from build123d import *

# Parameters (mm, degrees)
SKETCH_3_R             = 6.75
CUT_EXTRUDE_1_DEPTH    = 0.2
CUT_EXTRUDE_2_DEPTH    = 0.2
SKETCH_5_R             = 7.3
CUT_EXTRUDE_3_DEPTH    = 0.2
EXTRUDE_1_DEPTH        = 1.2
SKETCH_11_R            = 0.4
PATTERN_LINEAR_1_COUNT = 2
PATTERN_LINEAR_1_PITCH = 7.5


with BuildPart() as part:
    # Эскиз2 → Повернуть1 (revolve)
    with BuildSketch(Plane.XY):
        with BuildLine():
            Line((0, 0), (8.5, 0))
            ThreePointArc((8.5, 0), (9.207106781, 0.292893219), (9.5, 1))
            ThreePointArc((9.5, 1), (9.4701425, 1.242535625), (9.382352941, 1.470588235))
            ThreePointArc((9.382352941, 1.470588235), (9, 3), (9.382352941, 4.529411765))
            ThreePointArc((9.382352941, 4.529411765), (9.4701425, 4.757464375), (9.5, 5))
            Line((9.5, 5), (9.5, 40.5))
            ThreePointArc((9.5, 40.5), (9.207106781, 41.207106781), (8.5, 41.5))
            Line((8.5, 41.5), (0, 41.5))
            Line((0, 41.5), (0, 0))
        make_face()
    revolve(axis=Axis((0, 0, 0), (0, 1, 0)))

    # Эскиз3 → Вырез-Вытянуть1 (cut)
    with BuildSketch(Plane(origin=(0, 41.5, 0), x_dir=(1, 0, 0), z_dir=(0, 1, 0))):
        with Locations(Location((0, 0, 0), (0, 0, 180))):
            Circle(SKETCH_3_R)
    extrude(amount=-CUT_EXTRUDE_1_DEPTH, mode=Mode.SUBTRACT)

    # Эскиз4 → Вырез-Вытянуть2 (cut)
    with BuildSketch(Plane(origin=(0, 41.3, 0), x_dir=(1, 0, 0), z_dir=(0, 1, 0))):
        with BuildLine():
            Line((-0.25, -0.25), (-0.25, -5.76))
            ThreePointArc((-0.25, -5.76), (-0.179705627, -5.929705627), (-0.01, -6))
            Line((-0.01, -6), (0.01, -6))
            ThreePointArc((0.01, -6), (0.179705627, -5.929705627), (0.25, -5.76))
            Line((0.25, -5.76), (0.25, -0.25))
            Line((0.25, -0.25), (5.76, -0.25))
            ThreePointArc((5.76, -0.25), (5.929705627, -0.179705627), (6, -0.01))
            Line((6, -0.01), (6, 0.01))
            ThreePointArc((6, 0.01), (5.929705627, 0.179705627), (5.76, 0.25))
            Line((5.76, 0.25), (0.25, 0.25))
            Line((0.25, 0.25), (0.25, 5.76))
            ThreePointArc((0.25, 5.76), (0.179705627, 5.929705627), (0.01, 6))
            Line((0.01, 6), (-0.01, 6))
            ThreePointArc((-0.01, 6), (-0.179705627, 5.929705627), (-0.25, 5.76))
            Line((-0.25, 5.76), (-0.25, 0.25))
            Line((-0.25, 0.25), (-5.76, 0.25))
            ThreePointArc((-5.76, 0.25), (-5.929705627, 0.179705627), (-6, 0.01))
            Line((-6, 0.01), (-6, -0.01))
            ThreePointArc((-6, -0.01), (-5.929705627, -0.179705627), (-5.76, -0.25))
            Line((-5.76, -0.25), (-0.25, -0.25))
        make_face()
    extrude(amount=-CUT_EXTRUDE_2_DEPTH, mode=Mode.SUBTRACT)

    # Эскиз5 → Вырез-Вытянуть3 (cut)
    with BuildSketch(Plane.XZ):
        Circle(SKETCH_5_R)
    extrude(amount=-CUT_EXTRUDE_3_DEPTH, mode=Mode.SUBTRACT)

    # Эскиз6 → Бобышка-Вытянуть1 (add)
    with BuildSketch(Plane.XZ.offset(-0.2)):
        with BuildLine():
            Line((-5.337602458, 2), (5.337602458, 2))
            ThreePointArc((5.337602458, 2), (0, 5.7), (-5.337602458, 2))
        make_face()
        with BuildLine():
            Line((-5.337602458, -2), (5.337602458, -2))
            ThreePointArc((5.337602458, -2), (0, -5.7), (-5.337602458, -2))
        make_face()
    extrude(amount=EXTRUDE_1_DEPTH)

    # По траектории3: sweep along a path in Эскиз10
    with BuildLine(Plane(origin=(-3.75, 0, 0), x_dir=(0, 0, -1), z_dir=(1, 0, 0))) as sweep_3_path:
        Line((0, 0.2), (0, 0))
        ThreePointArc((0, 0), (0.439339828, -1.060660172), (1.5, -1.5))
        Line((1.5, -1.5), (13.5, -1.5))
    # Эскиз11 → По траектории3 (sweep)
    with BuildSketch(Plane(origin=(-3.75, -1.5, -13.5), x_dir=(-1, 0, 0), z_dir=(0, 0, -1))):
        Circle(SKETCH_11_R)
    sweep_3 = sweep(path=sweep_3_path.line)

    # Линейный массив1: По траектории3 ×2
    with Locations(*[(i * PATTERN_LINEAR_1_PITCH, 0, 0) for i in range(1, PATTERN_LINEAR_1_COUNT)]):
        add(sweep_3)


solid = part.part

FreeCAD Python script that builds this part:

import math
import FreeCAD as App
import Part
import Sketcher
from FreeCAD import Vector
Q = App.Units.Quantity

doc = App.newDocument("Part")
body = doc.addObject("PartDesign::Body", "Body")

# Sketch on XY plane
sketch1 = doc.addObject("Sketcher::SketchObject", "Sketch")
body.addObject(sketch1)
sketch1.AttachmentSupport = (doc.XY_Plane, [""])
sketch1.MapMode = "FlatFace"
sketch1.addGeometry([
    Part.LineSegment(Vector(0, 0, 0), Vector(8.5, 0, 0)),  # 0
    Part.ArcOfCircle(Part.Circle(Vector(8.5, 1, 0), Vector(0, 0, 1), 1), math.radians(-90), math.radians(0)),  # 1
    Part.ArcOfCircle(Part.Circle(Vector(8.5, 1, 0), Vector(0, 0, 1), 1), math.radians(0), math.radians(28)),  # 2
    Part.ArcOfCircle(Part.Circle(Vector(12.25, 3, 0), Vector(0, 0, 1), 3.25), math.radians(152), math.radians(208)),  # 3
    Part.ArcOfCircle(Part.Circle(Vector(8.5, 5, 0), Vector(0, 0, 1), 1), math.radians(-28), math.radians(0)),  # 4
    Part.LineSegment(Vector(9.5, 5, 0), Vector(9.5, 40.5, 0)),  # 5
    Part.ArcOfCircle(Part.Circle(Vector(8.5, 40.5, 0), Vector(0, 0, 1), 1), math.radians(0), math.radians(90)),  # 6
    Part.LineSegment(Vector(8.5, 41.5, 0), Vector(0, 41.5, 0)),  # 7
    Part.LineSegment(Vector(0, 41.5, 0), Vector(0, 0, 0)),  # 8
], False)
sketch1.addConstraint([
    Sketcher.Constraint("Tangent", 0, 2, 1, 1),
    Sketcher.Constraint("Tangent", 1, 2, 2, 1),
    Sketcher.Constraint("Tangent", 2, 2, 3, 2),
    Sketcher.Constraint("Tangent", 3, 1, 4, 1),
    Sketcher.Constraint("Tangent", 4, 2, 5, 1),
    Sketcher.Constraint("Tangent", 5, 2, 6, 1),
    Sketcher.Constraint("Tangent", 6, 2, 7, 1),
    Sketcher.Constraint("Coincident", 7, 2, 8, 1),
    Sketcher.Constraint("Coincident", 8, 2, 0, 1),
    Sketcher.Constraint("Horizontal", 0),
    Sketcher.Constraint("Vertical", 5),
    Sketcher.Constraint("Horizontal", 7),
    Sketcher.Constraint("Vertical", 8),
    Sketcher.Constraint("Coincident", 8, 2, -1, 1),
    Sketcher.Constraint("Equal", 1, 2),
    Sketcher.Constraint("Equal", 2, 4),
    Sketcher.Constraint("Equal", 4, 6),
    Sketcher.Constraint("Horizontal", 2, 3, 1, 2),
    Sketcher.Constraint("Vertical", 2, 3, 4, 3),
    Sketcher.Constraint("Radius", 1, Q("1 mm")),
    Sketcher.Constraint("Radius", 3, Q("3.25 mm")),
    Sketcher.Constraint("DistanceX", 0, 1, 0, 2, Q("8.5 mm")),
    Sketcher.Constraint("DistanceY", 5, 1, 5, 2, Q("35.5 mm")),
    Sketcher.Constraint("DistanceY", 8, 2, 8, 1, Q("41.5 mm")),
])
revolution = doc.addObject("PartDesign::Revolution", "Revolution")
body.addObject(revolution)
revolution.Profile = sketch1
revolution.ReferenceAxis = (sketch1, ["V_Axis"])
revolution.Angle = 360

# Sketch on XZ plane
sketch2 = doc.addObject("Sketcher::SketchObject", "Sketch001")
body.addObject(sketch2)
sketch2.AttachmentSupport = (doc.XZ_Plane, [""])
sketch2.MapMode = "FlatFace"
sketch2.AttachmentOffset = App.Placement(Vector(0, 0, -41.5), App.Rotation())
sketch2.addGeometry(Part.Circle(Vector(0, 0, 0), Vector(0, 0, 1), 7), False)
sketch2.addConstraint([
    Sketcher.Constraint("Coincident", 0, 3, -1, 1),
    Sketcher.Constraint("Diameter", 0, Q("13.5 mm")),
])
pocket1 = doc.addObject("PartDesign::Pocket", "Pocket")
body.addObject(pocket1)
pocket1.Profile = sketch2
pocket1.Length = 0.2
pocket1.Reversed = True

# Sketch on XZ plane
sketch3 = doc.addObject("Sketcher::SketchObject", "Sketch002")
body.addObject(sketch3)
sketch3.AttachmentSupport = (doc.XZ_Plane, [""])
sketch3.MapMode = "FlatFace"
sketch3.AttachmentOffset = App.Placement(Vector(0, 0, -41.3), App.Rotation())
sketch3.addGeometry([
    Part.LineSegment(Vector(-0.25, 0.25, 0), Vector(-0.25, 5.76, 0)),  # 0
    Part.ArcOfCircle(Part.Circle(Vector(-0.01, 5.76, 0), Vector(0, 0, 1), 0.24), math.radians(90), math.radians(180)),  # 1
    Part.LineSegment(Vector(-0.01, 6, 0), Vector(0.01, 6, 0)),  # 2
    Part.ArcOfCircle(Part.Circle(Vector(0.01, 5.76, 0), Vector(0, 0, 1), 0.24), math.radians(0), math.radians(90)),  # 3
    Part.LineSegment(Vector(0.25, 5.76, 0), Vector(0.25, 0.25, 0)),  # 4
    Part.LineSegment(Vector(0.25, 0.25, 0), Vector(5.76, 0.25, 0)),  # 5
    Part.ArcOfCircle(Part.Circle(Vector(5.76, 0.01, 0), Vector(0, 0, 1), 0.24), math.radians(0), math.radians(90)),  # 6
    Part.LineSegment(Vector(6, 0.01, 0), Vector(6, -0.01, 0)),  # 7
    Part.ArcOfCircle(Part.Circle(Vector(5.76, -0.01, 0), Vector(0, 0, 1), 0.24), math.radians(-90), math.radians(0)),  # 8
    Part.LineSegment(Vector(5.76, -0.25, 0), Vector(0.25, -0.25, 0)),  # 9
    Part.LineSegment(Vector(0.25, -0.25, 0), Vector(0.25, -5.76, 0)),  # 10
    Part.ArcOfCircle(Part.Circle(Vector(0.01, -5.76, 0), Vector(0, 0, 1), 0.24), math.radians(-90), math.radians(0)),  # 11
    Part.LineSegment(Vector(0.01, -6, 0), Vector(-0.01, -6, 0)),  # 12
    Part.ArcOfCircle(Part.Circle(Vector(-0.01, -5.76, 0), Vector(0, 0, 1), 0.24), math.radians(-180), math.radians(-90)),  # 13
    Part.LineSegment(Vector(-0.25, -5.76, 0), Vector(-0.25, -0.25, 0)),  # 14
    Part.LineSegment(Vector(-0.25, -0.25, 0), Vector(-5.76, -0.25, 0)),  # 15
    Part.ArcOfCircle(Part.Circle(Vector(-5.76, -0.01, 0), Vector(0, 0, 1), 0.24), math.radians(-180), math.radians(-90)),  # 16
    Part.LineSegment(Vector(-6, -0.01, 0), Vector(-6, 0.01, 0)),  # 17
    Part.ArcOfCircle(Part.Circle(Vector(-5.76, 0.01, 0), Vector(0, 0, 1), 0.24), math.radians(90), math.radians(180)),  # 18
    Part.LineSegment(Vector(-5.76, 0.25, 0), Vector(-0.25, 0.25, 0)),  # 19
], False)
sketch3.addConstraint([
    Sketcher.Constraint("Tangent", 0, 2, 1, 2),
    Sketcher.Constraint("Tangent", 1, 1, 2, 1),
    Sketcher.Constraint("Tangent", 2, 2, 3, 2),
    Sketcher.Constraint("Tangent", 3, 1, 4, 1),
    Sketcher.Constraint("Coincident", 4, 2, 5, 1),
    Sketcher.Constraint("Tangent", 5, 2, 6, 2),
    Sketcher.Constraint("Tangent", 6, 1, 7, 1),
    Sketcher.Constraint("Tangent", 7, 2, 8, 2),
    Sketcher.Constraint("Tangent", 8, 1, 9, 1),
    Sketcher.Constraint("Coincident", 9, 2, 10, 1),
    Sketcher.Constraint("Tangent", 10, 2, 11, 2),
    Sketcher.Constraint("Tangent", 11, 1, 12, 1),
    Sketcher.Constraint("Tangent", 12, 2, 13, 2),
    Sketcher.Constraint("Tangent", 13, 1, 14, 1),
    Sketcher.Constraint("Coincident", 14, 2, 15, 1),
    Sketcher.Constraint("Tangent", 15, 2, 16, 2),
    Sketcher.Constraint("Tangent", 16, 1, 17, 1),
    Sketcher.Constraint("Tangent", 17, 2, 18, 2),
    Sketcher.Constraint("Tangent", 18, 1, 19, 1),
    Sketcher.Constraint("Coincident", 19, 2, 0, 1),
    Sketcher.Constraint("Vertical", 0),
    Sketcher.Constraint("Horizontal", 2),
    Sketcher.Constraint("Vertical", 4),
    Sketcher.Constraint("Horizontal", 5),
    Sketcher.Constraint("Vertical", 7),
    Sketcher.Constraint("Horizontal", 9),
    Sketcher.Constraint("Vertical", 10),
    Sketcher.Constraint("Horizontal", 12),
    Sketcher.Constraint("Vertical", 14),
    Sketcher.Constraint("Horizontal", 15),
    Sketcher.Constraint("Vertical", 17),
    Sketcher.Constraint("Horizontal", 19),
    Sketcher.Constraint("Equal", 1, 3),
    Sketcher.Constraint("Equal", 3, 6),
    Sketcher.Constraint("Equal", 6, 8),
    Sketcher.Constraint("Equal", 8, 11),
    Sketcher.Constraint("Equal", 11, 13),
    Sketcher.Constraint("Equal", 13, 16),
    Sketcher.Constraint("Equal", 16, 18),
    Sketcher.Constraint("Symmetric", 1, 3, 11, 3, -1, 1),
    Sketcher.Constraint("Symmetric", 6, 3, 16, 3, -1, 1),
    Sketcher.Constraint("Symmetric", 9, 2, 14, 2, -2),
    Sketcher.Constraint("Symmetric", 4, 2, 19, 2, -2),
    Sketcher.Constraint("Equal", 19, 0),
    Sketcher.Constraint("Equal", 12, 7),
    Sketcher.Constraint("Radius", 1, Q("0.24 mm")),
    Sketcher.Constraint("DistanceY", -1, 1, 1, 1, Q("6 mm")),
    Sketcher.Constraint("DistanceX", 2, 1, 2, 2, Q("0.02 mm")),
])
pocket2 = doc.addObject("PartDesign::Pocket", "Pocket001")
body.addObject(pocket2)
pocket2.Profile = sketch3
pocket2.Length = 0.2
pocket2.Reversed = True

# Sketch on XZ plane
sketch4 = doc.addObject("Sketcher::SketchObject", "Sketch003")
body.addObject(sketch4)
sketch4.AttachmentSupport = (doc.XZ_Plane, [""])
sketch4.MapMode = "FlatFace"
sketch4.addGeometry(Part.Circle(Vector(0, 0, 0), Vector(0, 0, 1), 7), False)
sketch4.addConstraint([
    Sketcher.Constraint("Coincident", 0, 3, -1, 1),
    Sketcher.Constraint("Diameter", 0, Q("14.6 mm")),
])
pocket3 = doc.addObject("PartDesign::Pocket", "Pocket002")
body.addObject(pocket3)
pocket3.Profile = sketch4
pocket3.Length = 0.2

# Sketch on XZ plane
sketch5 = doc.addObject("Sketcher::SketchObject", "Sketch004")
body.addObject(sketch5)
sketch5.AttachmentSupport = (doc.XZ_Plane, [""])
sketch5.MapMode = "FlatFace"
sketch5.AttachmentOffset = App.Placement(Vector(0, 0, -0.2), App.Rotation())
sketch5.addGeometry([
    Part.LineSegment(Vector(-5, 2, 0), Vector(5, 2, 0)),
    Part.ArcOfCircle(Part.Circle(Vector(0, 0, 0), Vector(0, 0, 1), 6), math.radians(21), math.radians(159)),
    Part.LineSegment(Vector(5, -2, 0), Vector(-5, -2, 0)),
    Part.ArcOfCircle(Part.Circle(Vector(0, 0, 0), Vector(0, 0, 1), 6), math.radians(-159), math.radians(-21)),
], False)
sketch5.addConstraint([
    Sketcher.Constraint("Coincident", 0, 1, 1, 2),
    Sketcher.Constraint("Coincident", 1, 1, 0, 2),
    Sketcher.Constraint("Coincident", 2, 1, 3, 2),
    Sketcher.Constraint("Coincident", 3, 1, 2, 2),
    Sketcher.Constraint("Horizontal", 0),
    Sketcher.Constraint("Horizontal", 2),
    Sketcher.Constraint("Coincident", 1, 3, -1, 1),
    Sketcher.Constraint("Coincident", 3, 3, -1, 1),
    Sketcher.Constraint("Equal", 1, 3),
    Sketcher.Constraint("Vertical", 1, 1, 2, 1),
    Sketcher.Constraint("Radius", 1, Q("5.7 mm")),
    Sketcher.Constraint("DistanceY", -1, 1, 0, 1, Q("2 mm")),
])
pad1 = doc.addObject("PartDesign::Pad", "Pad")
body.addObject(pad1)
pad1.Profile = sketch5
pad1.Length = 1.2

# Sketch on XY plane
sketch6 = doc.addObject("Sketcher::SketchObject", "Sketch005")
body.addObject(sketch6)
sketch6.AttachmentSupport = (doc.XY_Plane, [""])
sketch6.MapMode = "FlatFace"
sketch6.AttachmentOffset = App.Placement(Vector(0, 0, -13.5), App.Rotation())
sketch6.addGeometry(Part.Circle(Vector(-3.75, -1.5, 0), Vector(0, 0, 1), 0.4), False)
sketch6.addConstraint([
    Sketcher.Constraint("Diameter", 0, Q("0.8 mm")),
    Sketcher.Constraint("DistanceY", 0, 3, -1, 1, Q("1.5 mm")),
    Sketcher.Constraint("DistanceX", 0, 3, -1, 1, Q("3.75 mm")),
])

# Sketch on YZ plane
sketch7 = doc.addObject("Sketcher::SketchObject", "Sketch006")
body.addObject(sketch7)
sketch7.AttachmentSupport = (doc.YZ_Plane, [""])
sketch7.MapMode = "FlatFace"
sketch7.AttachmentOffset = App.Placement(Vector(0, 0, -3.75), App.Rotation())
sketch7.addGeometry([
    Part.LineSegment(Vector(0.2, 0, 0), Vector(0, 0, 0)),
    Part.ArcOfCircle(Part.Circle(Vector(0, -1.5, 0), Vector(0, 0, 1), 1.5), math.radians(90), math.radians(180)),
    Part.LineSegment(Vector(-1.5, -1.5, 0), Vector(-1.5, -13.5, 0)),
], False)
sketch7.addConstraint([
    Sketcher.Constraint("Tangent", 0, 2, 1, 1),
    Sketcher.Constraint("Tangent", 1, 2, 2, 1),
    Sketcher.Constraint("Horizontal", 0),
    Sketcher.Constraint("Vertical", 2),
    Sketcher.Constraint("Coincident", 0, 2, -1, 1),
    Sketcher.Constraint("Radius", 1, Q("1.5 mm")),
    Sketcher.Constraint("DistanceY", 2, 2, 2, 1, Q("12 mm")),
    Sketcher.Constraint("DistanceX", 0, 2, 0, 1, Q("0.2 mm")),
])
doc.recompute()

additivepipe = doc.addObject("PartDesign::AdditivePipe", "AdditivePipe")
body.addObject(additivepipe)
additivepipe.Profile = sketch6
additivepipe.Spine = (sketch7, ["Edge1", "Edge2", "Edge3"])
doc.recompute()

linearpattern = doc.addObject("PartDesign::LinearPattern", "LinearPattern")
body.addObject(linearpattern)
linearpattern.Originals = [additivepipe]
linearpattern.Direction = (doc.X_Axis, [""])
linearpattern.Mode = "offset"
linearpattern.Offset = 7.5
linearpattern.Occurrences = 2
body.Tip = linearpattern

doc.recompute()
